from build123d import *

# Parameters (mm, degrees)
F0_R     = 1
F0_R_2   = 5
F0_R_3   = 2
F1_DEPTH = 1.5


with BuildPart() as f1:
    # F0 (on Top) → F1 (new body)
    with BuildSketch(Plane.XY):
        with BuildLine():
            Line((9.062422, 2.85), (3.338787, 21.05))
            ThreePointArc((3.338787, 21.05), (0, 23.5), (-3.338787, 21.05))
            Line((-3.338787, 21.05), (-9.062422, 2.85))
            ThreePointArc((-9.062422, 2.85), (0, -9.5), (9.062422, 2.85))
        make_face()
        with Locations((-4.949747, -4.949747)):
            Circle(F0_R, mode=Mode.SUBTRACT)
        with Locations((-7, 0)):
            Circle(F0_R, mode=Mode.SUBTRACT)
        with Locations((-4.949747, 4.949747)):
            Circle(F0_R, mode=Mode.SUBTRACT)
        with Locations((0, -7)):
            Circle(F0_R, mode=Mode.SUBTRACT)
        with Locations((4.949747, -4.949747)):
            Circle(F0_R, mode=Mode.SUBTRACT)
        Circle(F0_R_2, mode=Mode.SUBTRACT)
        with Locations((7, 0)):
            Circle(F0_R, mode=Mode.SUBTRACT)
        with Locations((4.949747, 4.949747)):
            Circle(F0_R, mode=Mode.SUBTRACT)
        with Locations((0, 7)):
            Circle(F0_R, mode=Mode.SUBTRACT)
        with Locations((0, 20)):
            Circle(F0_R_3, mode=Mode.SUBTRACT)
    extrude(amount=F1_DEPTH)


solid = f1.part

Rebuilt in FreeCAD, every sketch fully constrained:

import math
import FreeCAD as App
import Part
import Sketcher
from FreeCAD import Vector
Q = App.Units.Quantity

doc = App.newDocument("Part")
params = doc.addObject("Spreadsheet::Sheet", "Params")
for row, (alias, value) in enumerate([
    ("sketch1_diameter", "2 mm"),
    ("sketch1_diameter2", "10 mm"),
    ("sketch1_diameter3", "4 mm"),
    ("sketch1_radius", "3.5 mm"),
    ("sketch1_radius2", "9.5 mm"),
    ("pad1_length", "1.5 mm"),
], start=1):
    params.set(f"A{row}", alias)
    params.set(f"B{row}", "=" + value)
    params.setAlias(f"B{row}", alias)

body = doc.addObject("PartDesign::Body", "Body")

# Sketch on XY plane
sketch1 = body.newObject("Sketcher::SketchObject", "Sketch")
sketch1.AttachmentSupport = (doc.getObject("XY_Plane"), [""])
sketch1.MapMode = "FlatFace"
sketch1.addGeometry([
    Part.LineSegment(Vector(9.1, 2.9, 0), Vector(3.3, 21.1, 0)),  # 0
    Part.ArcOfCircle(Part.Circle(Vector(0, 20, 0), Vector(0, 0, 1), 3.5), math.radians(17), math.radians(163)),  # 1
    Part.LineSegment(Vector(-3.3, 21.1, 0), Vector(-9.1, 2.9, 0)),  # 2
    Part.ArcOfCircle(Part.Circle(Vector(0, 0, 0), Vector(0, 0, 1), 9.5), math.radians(163), math.radians(377)),  # 3
    Part.Circle(Vector(-4.9, -4.9, 0), Vector(0, 0, 1), 1),  # 4
    Part.Circle(Vector(-7, 0, 0), Vector(0, 0, 1), 1),  # 5
    Part.Circle(Vector(-4.9, 4.9, 0), Vector(0, 0, 1), 1),  # 6
    Part.Circle(Vector(0, -7, 0), Vector(0, 0, 1), 1),  # 7
    Part.Circle(Vector(4.9, -4.9, 0), Vector(0, 0, 1), 1),  # 8
    Part.Circle(Vector(0, 0, 0), Vector(0, 0, 1), 5),  # 9
    Part.Circle(Vector(7, 0, 0), Vector(0, 0, 1), 1),  # 10
    Part.Circle(Vector(4.9, 4.9, 0), Vector(0, 0, 1), 1),  # 11
    Part.Circle(Vector(0, 7, 0), Vector(0, 0, 1), 1),  # 12
    Part.Circle(Vector(0, 20, 0), Vector(0, 0, 1), 2),  # 13
], False)
sketch1.addConstraint([
    Sketcher.Constraint("Tangent", 0, 2, 1, 1),
    Sketcher.Constraint("Tangent", 1, 2, 2, 1),
    Sketcher.Constraint("Tangent", 2, 2, 3, 1),
    Sketcher.Constraint("Tangent", 3, 2, 0, 1),
    Sketcher.Constraint("Coincident", 3, 3, -1, 1),
    Sketcher.Constraint("Coincident", 9, 3, -1, 1),
    Sketcher.Constraint("Coincident", 13, 3, 1, 3),
    Sketcher.Constraint("Equal", 4, 5),
    Sketcher.Constraint("Equal", 5, 6),
    Sketcher.Constraint("Equal", 6, 7),
    Sketcher.Constraint("Equal", 7, 8),
    Sketcher.Constraint("Equal", 8, 10),
    Sketcher.Constraint("Equal", 10, 11),
    Sketcher.Constraint("Equal", 11, 12),
    Sketcher.Constraint("Symmetric", 6, 3, 8, 3, -1, 1),
    Sketcher.Constraint("Symmetric", 5, 3, 10, 3, -1, 1),
    Sketcher.Constraint("Symmetric", 4, 3, 11, 3, -1, 1),
    Sketcher.Constraint("Symmetric", 7, 3, 12, 3, -1, 1),
    Sketcher.Constraint("Symmetric", 4, 3, 8, 3, -2),
    Sketcher.Constraint("PointOnObject", 1, 3, -2),
    Sketcher.Constraint("PointOnObject", 5, 3, -1),
    Sketcher.Constraint("PointOnObject", 7, 3, -2),
    Sketcher.Constraint("Diameter", 4, Q("2 mm")),
    Sketcher.Constraint("Diameter", 9, Q("10 mm")),
    Sketcher.Constraint("Diameter", 13, Q("4 mm")),
    Sketcher.Constraint("Radius", 1, Q("3.5 mm")),
    Sketcher.Constraint("Radius", 3, Q("9.5 mm")),
    Sketcher.Constraint("DistanceY", -1, 1, 1, 3, Q("20 mm")),
    Sketcher.Constraint("DistanceX", 5, 3, -1, 1, Q("7 mm")),
    Sketcher.Constraint("DistanceY", 7, 3, -1, 1, Q("7 mm")),
    Sketcher.Constraint("DistanceX", 0, 2, 11, 3, Q("1.61096 mm")),
    Sketcher.Constraint("DistanceY", 4, 3, -1, 1, Q("4.949747 mm")),
])
sketch1.setExpression("Constraints[22]", "Params.sketch1_diameter")
sketch1.setExpression("Constraints[23]", "Params.sketch1_diameter2")
sketch1.setExpression("Constraints[24]", "Params.sketch1_diameter3")
sketch1.setExpression("Constraints[25]", "Params.sketch1_radius")
sketch1.setExpression("Constraints[26]", "Params.sketch1_radius2")
pad1 = body.newObject("PartDesign::Pad", "Pad")
pad1.Profile = sketch1
pad1.setExpression("Length", "Params.pad1_length")

doc.recompute()
